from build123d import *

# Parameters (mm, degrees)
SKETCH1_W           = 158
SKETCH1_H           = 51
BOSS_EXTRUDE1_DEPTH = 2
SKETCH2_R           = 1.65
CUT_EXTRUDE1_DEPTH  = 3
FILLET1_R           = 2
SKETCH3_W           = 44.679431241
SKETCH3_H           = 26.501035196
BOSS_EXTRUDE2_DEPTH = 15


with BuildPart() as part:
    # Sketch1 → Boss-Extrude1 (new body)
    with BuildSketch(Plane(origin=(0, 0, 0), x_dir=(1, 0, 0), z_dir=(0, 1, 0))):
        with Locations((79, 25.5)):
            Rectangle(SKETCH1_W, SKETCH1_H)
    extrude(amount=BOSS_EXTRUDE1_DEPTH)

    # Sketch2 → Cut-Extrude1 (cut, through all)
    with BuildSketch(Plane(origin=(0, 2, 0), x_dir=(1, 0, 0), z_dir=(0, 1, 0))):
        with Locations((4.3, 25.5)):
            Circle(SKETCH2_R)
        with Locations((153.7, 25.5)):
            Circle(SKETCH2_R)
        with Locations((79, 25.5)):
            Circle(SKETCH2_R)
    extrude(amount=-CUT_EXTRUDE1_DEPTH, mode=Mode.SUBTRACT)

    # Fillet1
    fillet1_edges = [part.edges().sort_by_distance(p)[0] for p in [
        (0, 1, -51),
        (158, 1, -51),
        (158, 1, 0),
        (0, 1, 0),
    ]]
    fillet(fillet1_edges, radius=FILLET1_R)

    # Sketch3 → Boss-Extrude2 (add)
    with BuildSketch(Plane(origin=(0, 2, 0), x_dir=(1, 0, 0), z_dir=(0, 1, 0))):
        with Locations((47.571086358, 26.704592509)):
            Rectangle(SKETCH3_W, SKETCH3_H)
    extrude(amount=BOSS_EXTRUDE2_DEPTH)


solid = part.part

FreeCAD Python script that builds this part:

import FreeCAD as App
import Part
import Sketcher


def edges_at(feature, points):
    """Names of the edges that pass closest to the given points."""
    edges = feature.Shape.Edges
    near = lambda p: min(range(len(edges)), key=lambda i: edges[i].distToShape(Part.Vertex(*p))[0])
    return sorted({f"Edge{near(p) + 1}" for p in points})


def add_polygon(sketch, points):
    """Adds a closed chain of lines whose ends are joined by coincident constraints."""
    first, n = sketch.GeometryCount, len(points)
    for a, b in zip(points, points[1:] + points[:1]):
        sketch.addGeometry(Part.LineSegment(App.Vector(*a, 0), App.Vector(*b, 0)), False)
    for i in range(n):
        sketch.addConstraint(Sketcher.Constraint("Coincident", first + i, 2, first + (i + 1) % n, 1))

doc = App.newDocument("Part")
params = doc.addObject("Spreadsheet::Sheet", "Params")
for row, (alias, value) in enumerate([
    ("sketch1_width", "158 mm"),
    ("sketch1_height", "51 mm"),
    ("pad1_length", "2 mm"),
    ("sketch2_diameter", "3.3 mm"),
    ("fillet_radius", "2 mm"),
    ("pad2_length", "15 mm"),
], start=1):
    params.set(f"A{row}", alias)
    params.set(f"B{row}", "=" + value)
    params.setAlias(f"B{row}", alias)

body = doc.addObject("PartDesign::Body", "Body")

sketch1 = doc.addObject("Sketcher::SketchObject", "Sketch")
body.addObject(sketch1)
sketch1.AttachmentSupport = (doc.XZ_Plane, [""])
sketch1.MapMode = "FlatFace"
add_polygon(sketch1, [(0, -51), (0, 0), (158, 0), (158, -51)])
sketch1.addConstraint(Sketcher.Constraint("Vertical", 0))
sketch1.addConstraint(Sketcher.Constraint("Horizontal", 1))
sketch1.addConstraint(Sketcher.Constraint("Vertical", 2))
sketch1.addConstraint(Sketcher.Constraint("Horizontal", 3))
sketch1.addConstraint(Sketcher.Constraint("Coincident", 0, 2, -1, 1))
sketch1.addConstraint(Sketcher.Constraint("DistanceX", 1, 1, 1, 2, 158.0))
sketch1.addConstraint(Sketcher.Constraint("DistanceY", 0, 1, 0, 2, 51.0))
sketch1.setExpression("Constraints[9]", "Params.sketch1_width")
sketch1.setExpression("Constraints[10]", "Params.sketch1_height")
pad1 = doc.addObject("PartDesign::Pad", "Pad")
body.addObject(pad1)
pad1.Profile = sketch1
pad1.setExpression("Length", "Params.pad1_length")
pad1.Reversed = True

sketch2 = doc.addObject("Sketcher::SketchObject", "Sketch001")
body.addObject(sketch2)
sketch2.AttachmentSupport = (doc.XZ_Plane, [""])
sketch2.MapMode = "FlatFace"
sketch2.AttachmentOffset = App.Placement(App.Vector(0, 0, -2), App.Rotation())
sketch2.addGeometry(Part.Circle(App.Vector(4.3, -25.5, 0), App.Vector(0, 0, 1), 1.65), False)
sketch2.addGeometry(Part.Circle(App.Vector(153.7, -25.5, 0), App.Vector(0, 0, 1), 1.65), False)
sketch2.addGeometry(Part.Circle(App.Vector(79, -25.5, 0), App.Vector(0, 0, 1), 1.65), False)
sketch2.addConstraint(Sketcher.Constraint("Equal", 0, 1))
sketch2.addConstraint(Sketcher.Constraint("Equal", 1, 2))
sketch2.addConstraint(Sketcher.Constraint("Horizontal", 0, 3, 1, 3))
sketch2.addConstraint(Sketcher.Constraint("Horizontal", 1, 3, 2, 3))
sketch2.addConstraint(Sketcher.Constraint("Diameter", 0, 3.3))
sketch2.addConstraint(Sketcher.Constraint("DistanceX", -1, 1, 2, 3, 79.0))
sketch2.addConstraint(Sketcher.Constraint("DistanceX", -1, 1, 0, 3, 4.3))
sketch2.addConstraint(Sketcher.Constraint("DistanceY", 0, 3, -1, 1, 25.5))
sketch2.addConstraint(Sketcher.Constraint("DistanceX", -1, 1, 1, 3, 153.7))
sketch2.setExpression("Constraints[4]", "Params.sketch2_diameter")
pocket1 = doc.addObject("PartDesign::Pocket", "Pocket")
body.addObject(pocket1)
pocket1.Profile = sketch2
pocket1.Type = "ThroughAll"
pocket1.Reversed = True
doc.recompute()

fillet = doc.addObject("PartDesign::Fillet", "Fillet")
body.addObject(fillet)
fillet.Base = (pocket1, edges_at(pocket1, [
    (0, 1, -51),
    (158, 1, -51),
    (158, 1, 0),
    (0, 1, 0),
]))
fillet.setExpression("Radius", "Params.fillet_radius")

sketch3 = doc.addObject("Sketcher::SketchObject", "Sketch002")
body.addObject(sketch3)
sketch3.AttachmentSupport = (doc.XZ_Plane, [""])
sketch3.MapMode = "FlatFace"
sketch3.AttachmentOffset = App.Placement(App.Vector(0, 0, -2), App.Rotation())
add_polygon(sketch3, [(25.231371, -39.95511), (25.231371, -13.454075), (69.910802, -13.454075), (69.910802, -39.95511)])
sketch3.addConstraint(Sketcher.Constraint("Vertical", 0))
sketch3.addConstraint(Sketcher.Constraint("Horizontal", 1))
sketch3.addConstraint(Sketcher.Constraint("Vertical", 2))
sketch3.addConstraint(Sketcher.Constraint("Horizontal", 3))
sketch3.addConstraint(Sketcher.Constraint("DistanceX", 1, 1, 1, 2, 44.679431))
sketch3.addConstraint(Sketcher.Constraint("DistanceX", -1, 1, 1, 2, 69.910802))
sketch3.addConstraint(Sketcher.Constraint("DistanceY", 0, 1, 0, 2, 26.501035))
sketch3.addConstraint(Sketcher.Constraint("DistanceY", 2, 2, -1, 1, 39.95511))
pad2 = doc.addObject("PartDesign::Pad", "Pad001")
body.addObject(pad2)
pad2.Profile = sketch3
pad2.setExpression("Length", "Params.pad2_length")
pad2.Reversed = True

doc.recompute()
